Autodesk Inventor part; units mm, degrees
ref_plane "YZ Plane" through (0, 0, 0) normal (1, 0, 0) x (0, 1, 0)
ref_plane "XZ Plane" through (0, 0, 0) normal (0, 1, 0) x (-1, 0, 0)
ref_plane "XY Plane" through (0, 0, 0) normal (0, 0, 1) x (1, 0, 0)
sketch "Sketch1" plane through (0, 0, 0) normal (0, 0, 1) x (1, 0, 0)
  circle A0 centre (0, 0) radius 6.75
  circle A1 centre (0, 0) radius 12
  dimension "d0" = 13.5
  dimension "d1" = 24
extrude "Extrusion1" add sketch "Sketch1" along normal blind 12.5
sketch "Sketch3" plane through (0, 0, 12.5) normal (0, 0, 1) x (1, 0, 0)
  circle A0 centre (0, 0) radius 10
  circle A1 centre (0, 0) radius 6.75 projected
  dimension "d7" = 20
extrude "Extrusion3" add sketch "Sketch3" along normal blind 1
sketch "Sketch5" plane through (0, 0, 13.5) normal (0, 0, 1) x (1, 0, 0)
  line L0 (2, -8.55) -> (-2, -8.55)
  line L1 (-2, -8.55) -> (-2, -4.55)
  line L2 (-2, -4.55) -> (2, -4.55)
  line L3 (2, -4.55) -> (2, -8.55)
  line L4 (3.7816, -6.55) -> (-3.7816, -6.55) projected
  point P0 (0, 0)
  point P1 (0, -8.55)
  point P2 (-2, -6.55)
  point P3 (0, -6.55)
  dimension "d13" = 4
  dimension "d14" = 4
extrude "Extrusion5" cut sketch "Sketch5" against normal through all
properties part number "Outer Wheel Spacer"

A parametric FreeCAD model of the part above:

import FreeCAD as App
import Part
import Sketcher

V = App.Vector
Q = App.Units.Quantity


def add_polygon(sketch, points):
    """Adds a closed chain of lines whose ends are joined by coincident constraints."""
    first, n = sketch.GeometryCount, len(points)
    for a, b in zip(points, points[1:] + points[:1]):
        sketch.addGeometry(Part.LineSegment(App.Vector(*a, 0), App.Vector(*b, 0)), False)
    for i in range(n):
        sketch.addConstraint(Sketcher.Constraint("Coincident", first + i, 2, first + (i + 1) % n, 1))

doc = App.newDocument("Part")
body = doc.addObject("PartDesign::Body", "Body")

sketch1 = body.newObject("Sketcher::SketchObject", "Sketch")
sketch1.AttachmentSupport = (doc.getObject("XY_Plane"), [""])
sketch1.MapMode = "FlatFace"
sketch1.addGeometry([
    Part.Circle(V(0, 0, 0), V(0, 0, 1), 12),
    Part.Circle(V(0, 0, 0), V(0, 0, 1), 7),
], False)
sketch1.addConstraint([
    Sketcher.Constraint("Coincident", 0, 3, -1, 1),
    Sketcher.Constraint("Coincident", 1, 3, -1, 1),
    Sketcher.Constraint("Diameter", 0, Q("24 mm")),
    Sketcher.Constraint("Diameter", 1, Q("13.5 mm")),
])
pad1 = body.newObject("PartDesign::Pad", "Pad")
pad1.Profile = sketch1
pad1.Length = 12.5

sketch2 = body.newObject("Sketcher::SketchObject", "Sketch001")
sketch2.AttachmentSupport = (doc.getObject("XY_Plane"), [""])
sketch2.MapMode = "FlatFace"
sketch2.AttachmentOffset = App.Placement(V(0, 0, 12.5), App.Rotation())
sketch2.addGeometry([
    Part.Circle(V(0, 0, 0), V(0, 0, 1), 10),
    Part.Circle(V(0, 0, 0), V(0, 0, 1), 7),
], False)
sketch2.addConstraint([
    Sketcher.Constraint("Coincident", 0, 3, -1, 1),
    Sketcher.Constraint("Coincident", 1, 3, -1, 1),
    Sketcher.Constraint("Diameter", 0, Q("20 mm")),
    Sketcher.Constraint("Diameter", 1, Q("13.5 mm")),
])
pad2 = body.newObject("PartDesign::Pad", "Pad001")
pad2.Profile = sketch2
pad2.Length = 1

sketch3 = body.newObject("Sketcher::SketchObject", "Sketch002")
sketch3.AttachmentSupport = (doc.getObject("XY_Plane"), [""])
sketch3.MapMode = "FlatFace"
sketch3.AttachmentOffset = App.Placement(V(0, 0, 13.5), App.Rotation())
add_polygon(sketch3, [(-2, -8.6), (2, -8.6), (2, -4.5), (-2, -4.5)])
sketch3.addConstraint([
    Sketcher.Constraint("Horizontal", 0),
    Sketcher.Constraint("Vertical", 1),
    Sketcher.Constraint("Horizontal", 2),
    Sketcher.Constraint("Vertical", 3),
    Sketcher.Constraint("Equal", 2, 1),
    Sketcher.Constraint("DistanceX", 0, 1, 0, 2, Q("4 mm")),
    Sketcher.Constraint("DistanceX", -1, 1, 0, 2, Q("2 mm")),
    Sketcher.Constraint("DistanceY", 0, 2, -1, 1, Q("8.55 mm")),
])
pocket1 = body.newObject("PartDesign::Pocket", "Pocket")
pocket1.Profile = sketch3
pocket1.Type = "ThroughAll"

doc.recompute()
